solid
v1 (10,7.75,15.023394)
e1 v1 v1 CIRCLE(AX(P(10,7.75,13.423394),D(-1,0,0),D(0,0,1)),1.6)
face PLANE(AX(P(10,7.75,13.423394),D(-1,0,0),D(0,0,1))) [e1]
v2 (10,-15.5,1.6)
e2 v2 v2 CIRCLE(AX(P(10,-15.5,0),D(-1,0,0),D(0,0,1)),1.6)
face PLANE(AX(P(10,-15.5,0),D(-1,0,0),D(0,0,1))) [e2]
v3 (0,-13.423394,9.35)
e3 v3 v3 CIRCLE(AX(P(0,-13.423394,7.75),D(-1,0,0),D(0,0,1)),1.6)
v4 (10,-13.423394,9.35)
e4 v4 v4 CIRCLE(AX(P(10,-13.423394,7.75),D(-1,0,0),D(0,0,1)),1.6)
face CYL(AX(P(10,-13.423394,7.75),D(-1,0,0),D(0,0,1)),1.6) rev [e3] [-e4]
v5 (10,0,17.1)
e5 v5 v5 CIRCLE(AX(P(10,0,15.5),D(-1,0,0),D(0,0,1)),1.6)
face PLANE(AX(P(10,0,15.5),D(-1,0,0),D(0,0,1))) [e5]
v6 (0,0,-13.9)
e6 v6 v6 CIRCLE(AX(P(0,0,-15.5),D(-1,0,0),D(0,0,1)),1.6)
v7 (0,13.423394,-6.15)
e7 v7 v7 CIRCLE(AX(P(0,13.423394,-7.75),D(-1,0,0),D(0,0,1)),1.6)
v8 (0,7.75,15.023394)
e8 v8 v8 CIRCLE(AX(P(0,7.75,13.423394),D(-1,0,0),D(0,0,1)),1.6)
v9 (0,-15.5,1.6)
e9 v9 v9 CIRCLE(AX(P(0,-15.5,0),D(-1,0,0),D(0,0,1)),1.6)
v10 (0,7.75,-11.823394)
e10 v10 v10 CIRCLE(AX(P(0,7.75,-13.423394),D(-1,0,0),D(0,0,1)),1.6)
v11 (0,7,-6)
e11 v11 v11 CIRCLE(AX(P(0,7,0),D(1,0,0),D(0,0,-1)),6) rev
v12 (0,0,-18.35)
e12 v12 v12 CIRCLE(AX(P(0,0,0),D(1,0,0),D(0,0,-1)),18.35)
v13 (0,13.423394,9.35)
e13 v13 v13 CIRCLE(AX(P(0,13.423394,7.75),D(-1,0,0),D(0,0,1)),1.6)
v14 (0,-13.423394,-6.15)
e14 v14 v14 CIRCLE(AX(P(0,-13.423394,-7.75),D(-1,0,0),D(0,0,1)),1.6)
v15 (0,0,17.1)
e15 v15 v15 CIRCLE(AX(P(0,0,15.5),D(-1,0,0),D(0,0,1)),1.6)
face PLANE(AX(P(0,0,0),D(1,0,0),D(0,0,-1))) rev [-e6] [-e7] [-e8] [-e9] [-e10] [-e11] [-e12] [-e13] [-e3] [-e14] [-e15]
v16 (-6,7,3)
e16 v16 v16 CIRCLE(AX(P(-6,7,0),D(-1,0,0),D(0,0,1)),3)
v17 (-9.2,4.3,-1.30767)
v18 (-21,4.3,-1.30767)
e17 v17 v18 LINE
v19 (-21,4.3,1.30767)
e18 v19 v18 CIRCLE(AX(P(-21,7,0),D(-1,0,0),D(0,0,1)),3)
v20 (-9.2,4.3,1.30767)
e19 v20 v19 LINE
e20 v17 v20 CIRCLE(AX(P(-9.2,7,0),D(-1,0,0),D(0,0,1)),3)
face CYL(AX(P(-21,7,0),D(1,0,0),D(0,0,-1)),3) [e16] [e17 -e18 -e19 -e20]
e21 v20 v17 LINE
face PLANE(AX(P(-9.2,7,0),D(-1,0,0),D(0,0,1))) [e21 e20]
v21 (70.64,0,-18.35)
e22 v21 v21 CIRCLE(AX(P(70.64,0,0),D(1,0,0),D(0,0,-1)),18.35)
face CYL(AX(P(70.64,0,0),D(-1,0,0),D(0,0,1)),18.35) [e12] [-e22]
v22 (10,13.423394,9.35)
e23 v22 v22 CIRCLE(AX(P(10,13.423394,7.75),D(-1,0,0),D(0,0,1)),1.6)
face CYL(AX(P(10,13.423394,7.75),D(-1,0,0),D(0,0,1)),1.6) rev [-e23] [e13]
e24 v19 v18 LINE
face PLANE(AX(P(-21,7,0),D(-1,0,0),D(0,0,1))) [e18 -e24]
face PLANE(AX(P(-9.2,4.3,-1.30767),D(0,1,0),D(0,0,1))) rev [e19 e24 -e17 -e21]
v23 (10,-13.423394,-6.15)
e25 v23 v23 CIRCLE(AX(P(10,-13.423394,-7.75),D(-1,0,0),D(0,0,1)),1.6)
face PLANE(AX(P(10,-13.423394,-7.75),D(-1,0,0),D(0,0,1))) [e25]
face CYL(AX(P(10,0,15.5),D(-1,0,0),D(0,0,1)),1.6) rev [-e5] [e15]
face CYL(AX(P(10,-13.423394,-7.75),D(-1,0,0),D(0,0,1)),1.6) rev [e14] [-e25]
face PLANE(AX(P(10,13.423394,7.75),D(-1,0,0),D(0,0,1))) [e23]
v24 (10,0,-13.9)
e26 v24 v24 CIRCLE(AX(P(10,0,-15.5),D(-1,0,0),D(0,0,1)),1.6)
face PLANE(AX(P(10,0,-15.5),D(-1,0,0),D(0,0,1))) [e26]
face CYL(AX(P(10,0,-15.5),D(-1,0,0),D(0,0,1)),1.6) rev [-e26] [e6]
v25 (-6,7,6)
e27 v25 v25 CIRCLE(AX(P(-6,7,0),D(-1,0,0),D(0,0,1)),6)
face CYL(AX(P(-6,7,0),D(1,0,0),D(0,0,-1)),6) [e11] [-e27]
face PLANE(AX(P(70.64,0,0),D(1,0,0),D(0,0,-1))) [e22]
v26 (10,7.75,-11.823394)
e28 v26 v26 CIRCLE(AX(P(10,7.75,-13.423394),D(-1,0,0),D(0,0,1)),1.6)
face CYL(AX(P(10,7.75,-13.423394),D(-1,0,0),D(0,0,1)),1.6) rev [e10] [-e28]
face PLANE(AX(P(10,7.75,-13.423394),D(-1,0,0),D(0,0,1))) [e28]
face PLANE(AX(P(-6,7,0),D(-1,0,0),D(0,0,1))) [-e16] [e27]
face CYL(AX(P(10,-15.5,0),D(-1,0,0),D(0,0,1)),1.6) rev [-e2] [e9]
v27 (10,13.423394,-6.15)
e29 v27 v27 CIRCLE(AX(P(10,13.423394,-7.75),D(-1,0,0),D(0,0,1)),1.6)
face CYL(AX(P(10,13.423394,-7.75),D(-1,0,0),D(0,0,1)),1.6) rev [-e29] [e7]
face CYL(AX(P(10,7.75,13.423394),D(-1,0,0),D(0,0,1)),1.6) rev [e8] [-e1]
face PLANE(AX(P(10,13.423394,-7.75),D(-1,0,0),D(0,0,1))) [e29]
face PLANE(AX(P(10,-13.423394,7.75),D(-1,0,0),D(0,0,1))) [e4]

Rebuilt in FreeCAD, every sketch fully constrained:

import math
import FreeCAD as App
import Part
import Sketcher

V = App.Vector

doc = App.newDocument("Part")
body = doc.addObject("PartDesign::Body", "Body")

# Sketch on YZ plane
sketch1 = body.newObject("Sketcher::SketchObject", "Sketch")
sketch1.AttachmentSupport = (doc.getObject("YZ_Plane"), [""])
sketch1.MapMode = "FlatFace"
sketch1.addGeometry(Part.Circle(V(0, 0, 0), V(0, 0, 1), 18), False)
sketch1.addConstraint(Sketcher.Constraint("Coincident", 0, 3, -1, 1))
sketch1.addConstraint(Sketcher.Constraint("Diameter", 0, 36.7))
pad1 = body.newObject("PartDesign::Pad", "Pad")
pad1.Profile = sketch1
pad1.Length = 70.64

# Sketch on YZ plane
sketch2 = body.newObject("Sketcher::SketchObject", "Sketch001")
sketch2.AttachmentSupport = (doc.getObject("YZ_Plane"), [""])
sketch2.MapMode = "FlatFace"
sketch2.addGeometry(Part.Circle(V(-15.5, 0, 0), V(0, 0, 1), 1.6), False)
sketch2.addGeometry(Part.Circle(V(-13.4, -7.8, 0), V(0, 0, 1), 1.6), False)
sketch2.addGeometry(Part.Circle(V(0, -15.5, 0), V(0, 0, 1), 1.6), False)
sketch2.addGeometry(Part.Circle(V(7.8, -13.4, 0), V(0, 0, 1), 1.6), False)
sketch2.addGeometry(Part.Circle(V(13.4, -7.8, 0), V(0, 0, 1), 1.6), False)
sketch2.addGeometry(Part.Circle(V(13.4, 7.8, 0), V(0, 0, 1), 1.6), False)
sketch2.addGeometry(Part.Circle(V(7.8, 13.4, 0), V(0, 0, 1), 1.6), False)
sketch2.addGeometry(Part.Circle(V(0, 15.5, 0), V(0, 0, 1), 1.6), False)
sketch2.addGeometry(Part.Circle(V(-13.4, 7.8, 0), V(0, 0, 1), 1.6), False)
sketch2.addConstraint(Sketcher.Constraint("Equal", 0, 1))
sketch2.addConstraint(Sketcher.Constraint("Equal", 1, 2))
sketch2.addConstraint(Sketcher.Constraint("Equal", 2, 3))
sketch2.addConstraint(Sketcher.Constraint("Equal", 3, 4))
sketch2.addConstraint(Sketcher.Constraint("Equal", 4, 5))
sketch2.addConstraint(Sketcher.Constraint("Equal", 5, 6))
sketch2.addConstraint(Sketcher.Constraint("Equal", 6, 7))
sketch2.addConstraint(Sketcher.Constraint("Equal", 7, 8))
sketch2.addConstraint(Sketcher.Constraint("Symmetric", 1, 3, 5, 3, -1, 1))
sketch2.addConstraint(Sketcher.Constraint("Symmetric", 2, 3, 7, 3, -1, 1))
sketch2.addConstraint(Sketcher.Constraint("Symmetric", 4, 3, 8, 3, -1, 1))
sketch2.addConstraint(Sketcher.Constraint("Symmetric", 1, 3, 4, 3, -2))
sketch2.addConstraint(Sketcher.Constraint("Symmetric", 3, 3, 6, 3, -1))
sketch2.addConstraint(Sketcher.Constraint("PointOnObject", 0, 3, -1))
sketch2.addConstraint(Sketcher.Constraint("PointOnObject", 2, 3, -2))
sketch2.addConstraint(Sketcher.Constraint("Diameter", 0, 3.2))
sketch2.addConstraint(Sketcher.Constraint("DistanceX", 0, 3, -1, 1, 15.5))
sketch2.addConstraint(Sketcher.Constraint("DistanceY", 2, 3, -1, 1, 15.5))
sketch2.addConstraint(Sketcher.Constraint("DistanceY", 4, 3, 5, 3, 15.5))
sketch2.addConstraint(Sketcher.Constraint("DistanceX", -1, 1, 3, 3, 7.75))
sketch2.addConstraint(Sketcher.Constraint("DistanceX", 1, 3, -1, 1, 13.423394))
sketch2.addConstraint(Sketcher.Constraint("DistanceY", 3, 3, -1, 1, 13.423394))
pocket1 = body.newObject("PartDesign::Pocket", "Pocket")
pocket1.Profile = sketch2
pocket1.Length = 10
pocket1.Reversed = True

# Sketch on YZ plane
sketch3 = body.newObject("Sketcher::SketchObject", "Sketch002")
sketch3.AttachmentSupport = (doc.getObject("YZ_Plane"), [""])
sketch3.MapMode = "FlatFace"
sketch3.addGeometry(Part.Circle(V(7, 0, 0), V(0, 0, 1), 3), False)
sketch3.addConstraint(Sketcher.Constraint("PointOnObject", 0, 3, -1))
sketch3.addConstraint(Sketcher.Constraint("Diameter", 0, 6.0))
sketch3.addConstraint(Sketcher.Constraint("DistanceX", -1, 1, 0, 3, 7.0))
pad2 = body.newObject("PartDesign::Pad", "Pad001")
pad2.Profile = sketch3
pad2.Length = 21
pad2.Reversed = True

# Sketch on YZ plane
sketch4 = body.newObject("Sketcher::SketchObject", "Sketch003")
sketch4.AttachmentSupport = (doc.getObject("YZ_Plane"), [""])
sketch4.MapMode = "FlatFace"
sketch4.addGeometry(Part.Circle(V(7, 0, 0), V(0, 0, 1), 6), False)
sketch4.addConstraint(Sketcher.Constraint("PointOnObject", 0, 3, -1))
sketch4.addConstraint(Sketcher.Constraint("Diameter", 0, 12.0))
sketch4.addConstraint(Sketcher.Constraint("DistanceX", -1, 1, 0, 3, 7.0))
pad3 = body.newObject("PartDesign::Pad", "Pad002")
pad3.Profile = sketch4
pad3.Length = 6
pad3.Reversed = True

# Sketch on YZ plane
sketch5 = body.newObject("Sketcher::SketchObject", "Sketch004")
sketch5.AttachmentSupport = (doc.getObject("YZ_Plane"), [""])
sketch5.MapMode = "FlatFace"
sketch5.AttachmentOffset = App.Placement(V(0, 0, -9.2), App.Rotation())
sketch5.addGeometry(Part.LineSegment(V(4.3, 1.3, 0), V(4.3, -1.3, 0)), False)
sketch5.addGeometry(Part.ArcOfCircle(Part.Circle(V(7, 0, 0), V(0, 0, 1), 3), math.radians(154), math.radians(206)), False)
sketch5.addConstraint(Sketcher.Constraint("Coincident", 0, 1, 1, 1))
sketch5.addConstraint(Sketcher.Constraint("Coincident", 1, 2, 0, 2))
sketch5.addConstraint(Sketcher.Constraint("Vertical", 0))
sketch5.addConstraint(Sketcher.Constraint("PointOnObject", 1, 3, -1))
sketch5.addConstraint(Sketcher.Constraint("Radius", 1, 3.0))
sketch5.addConstraint(Sketcher.Constraint("DistanceX", -1, 1, 1, 3, 7.0))
sketch5.addConstraint(Sketcher.Constraint("DistanceX", -1, 1, 0, 1, 4.3))
pocket2 = body.newObject("PartDesign::Pocket", "Pocket001")
pocket2.Profile = sketch5
pocket2.Length = 11.8

doc.recompute()
